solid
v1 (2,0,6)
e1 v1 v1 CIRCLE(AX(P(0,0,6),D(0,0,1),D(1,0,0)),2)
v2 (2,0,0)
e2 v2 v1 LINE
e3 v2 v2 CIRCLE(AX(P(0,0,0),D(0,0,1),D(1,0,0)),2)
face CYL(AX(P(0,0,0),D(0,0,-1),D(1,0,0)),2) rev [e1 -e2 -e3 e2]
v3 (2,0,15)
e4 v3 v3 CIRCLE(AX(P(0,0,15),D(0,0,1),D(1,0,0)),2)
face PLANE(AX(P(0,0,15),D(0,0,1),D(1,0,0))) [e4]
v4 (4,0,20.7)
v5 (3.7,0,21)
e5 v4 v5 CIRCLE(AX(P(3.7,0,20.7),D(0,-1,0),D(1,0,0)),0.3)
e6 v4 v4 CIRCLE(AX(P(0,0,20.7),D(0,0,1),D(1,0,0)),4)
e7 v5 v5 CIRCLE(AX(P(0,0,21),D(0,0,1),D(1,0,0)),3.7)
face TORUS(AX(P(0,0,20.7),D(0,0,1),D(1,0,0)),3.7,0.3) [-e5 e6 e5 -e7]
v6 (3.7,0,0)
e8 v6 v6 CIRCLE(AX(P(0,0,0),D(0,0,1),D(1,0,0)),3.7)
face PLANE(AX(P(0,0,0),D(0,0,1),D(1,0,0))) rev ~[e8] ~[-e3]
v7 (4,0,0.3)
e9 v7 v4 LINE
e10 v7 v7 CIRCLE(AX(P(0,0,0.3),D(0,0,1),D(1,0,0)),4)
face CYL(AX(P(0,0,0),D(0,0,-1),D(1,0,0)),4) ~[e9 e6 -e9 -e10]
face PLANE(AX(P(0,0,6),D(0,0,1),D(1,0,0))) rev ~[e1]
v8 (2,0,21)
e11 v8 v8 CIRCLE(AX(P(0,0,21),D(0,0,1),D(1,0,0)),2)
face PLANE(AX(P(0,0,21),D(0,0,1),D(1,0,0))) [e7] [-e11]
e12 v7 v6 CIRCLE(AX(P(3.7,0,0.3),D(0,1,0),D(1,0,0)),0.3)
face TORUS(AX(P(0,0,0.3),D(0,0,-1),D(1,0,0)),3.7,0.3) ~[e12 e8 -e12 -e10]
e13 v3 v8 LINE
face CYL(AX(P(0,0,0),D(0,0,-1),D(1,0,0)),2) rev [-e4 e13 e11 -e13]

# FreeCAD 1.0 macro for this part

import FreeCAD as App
import Part
import Sketcher
Q = App.Units.Quantity


def edges_at(feature, points):
    """Names of the edges that pass closest to the given points."""
    edges = feature.Shape.Edges
    near = lambda p: min(range(len(edges)), key=lambda i: edges[i].distToShape(Part.Vertex(*p))[0])
    return sorted({f"Edge{near(p) + 1}" for p in points})

doc = App.newDocument("Part")
body = doc.addObject("PartDesign::Body", "Body")

# Sketch on XY plane
sketch1 = doc.addObject("Sketcher::SketchObject", "Sketch")
body.addObject(sketch1)
sketch1.AttachmentSupport = (doc.XY_Plane, [""])
sketch1.MapMode = "FlatFace"
sketch1.addGeometry(Part.Circle(App.Vector(0, 0, 0), App.Vector(0, 0, 1), 4), False)
sketch1.addGeometry(Part.Circle(App.Vector(0, 0, 0), App.Vector(0, 0, 1), 2), False)
sketch1.addConstraint(Sketcher.Constraint("Coincident", 0, 3, -1, 1))
sketch1.addConstraint(Sketcher.Constraint("Coincident", 1, 3, -1, 1))
sketch1.addConstraint(Sketcher.Constraint("Diameter", 0, Q("8 mm")))
sketch1.addConstraint(Sketcher.Constraint("Diameter", 1, Q("4 mm")))
pad1 = doc.addObject("PartDesign::Pad", "Pad")
body.addObject(pad1)
pad1.Profile = sketch1
pad1.Length = 21
doc.recompute()

fillet = doc.addObject("PartDesign::Fillet", "Fillet")
body.addObject(fillet)
fillet.Base = (pad1, edges_at(pad1, [(-4, 0, 21), (-4, 0, 0)]))
fillet.Radius = 0.3

# Sketch on XY plane
sketch2 = doc.addObject("Sketcher::SketchObject", "Sketch001")
body.addObject(sketch2)
sketch2.AttachmentSupport = (doc.XY_Plane, [""])
sketch2.MapMode = "FlatFace"
sketch2.addGeometry(Part.Circle(App.Vector(0, 0, 0), App.Vector(0, 0, 1), 2), False)
sketch2.addConstraint(Sketcher.Constraint("Coincident", 0, 3, -1, 1))
sketch2.addConstraint(Sketcher.Constraint("Diameter", 0, Q("4 mm")))
pad2 = doc.addObject("PartDesign::Pad", "Pad001")
body.addObject(pad2)
pad2.Profile = sketch2
pad2.Length = 15

# Sketch on XY plane
sketch3 = doc.addObject("Sketcher::SketchObject", "Sketch002")
body.addObject(sketch3)
sketch3.AttachmentSupport = (doc.XY_Plane, [""])
sketch3.MapMode = "FlatFace"
sketch3.addGeometry(Part.Circle(App.Vector(0, 0, 0), App.Vector(0, 0, 1), 2), False)
sketch3.addConstraint(Sketcher.Constraint("Coincident", 0, 3, -1, 1))
sketch3.addConstraint(Sketcher.Constraint("Diameter", 0, Q("4 mm")))
pocket1 = doc.addObject("PartDesign::Pocket", "Pocket")
body.addObject(pocket1)
pocket1.Profile = sketch3
pocket1.Length = 6
pocket1.Reversed = True

doc.recompute()
